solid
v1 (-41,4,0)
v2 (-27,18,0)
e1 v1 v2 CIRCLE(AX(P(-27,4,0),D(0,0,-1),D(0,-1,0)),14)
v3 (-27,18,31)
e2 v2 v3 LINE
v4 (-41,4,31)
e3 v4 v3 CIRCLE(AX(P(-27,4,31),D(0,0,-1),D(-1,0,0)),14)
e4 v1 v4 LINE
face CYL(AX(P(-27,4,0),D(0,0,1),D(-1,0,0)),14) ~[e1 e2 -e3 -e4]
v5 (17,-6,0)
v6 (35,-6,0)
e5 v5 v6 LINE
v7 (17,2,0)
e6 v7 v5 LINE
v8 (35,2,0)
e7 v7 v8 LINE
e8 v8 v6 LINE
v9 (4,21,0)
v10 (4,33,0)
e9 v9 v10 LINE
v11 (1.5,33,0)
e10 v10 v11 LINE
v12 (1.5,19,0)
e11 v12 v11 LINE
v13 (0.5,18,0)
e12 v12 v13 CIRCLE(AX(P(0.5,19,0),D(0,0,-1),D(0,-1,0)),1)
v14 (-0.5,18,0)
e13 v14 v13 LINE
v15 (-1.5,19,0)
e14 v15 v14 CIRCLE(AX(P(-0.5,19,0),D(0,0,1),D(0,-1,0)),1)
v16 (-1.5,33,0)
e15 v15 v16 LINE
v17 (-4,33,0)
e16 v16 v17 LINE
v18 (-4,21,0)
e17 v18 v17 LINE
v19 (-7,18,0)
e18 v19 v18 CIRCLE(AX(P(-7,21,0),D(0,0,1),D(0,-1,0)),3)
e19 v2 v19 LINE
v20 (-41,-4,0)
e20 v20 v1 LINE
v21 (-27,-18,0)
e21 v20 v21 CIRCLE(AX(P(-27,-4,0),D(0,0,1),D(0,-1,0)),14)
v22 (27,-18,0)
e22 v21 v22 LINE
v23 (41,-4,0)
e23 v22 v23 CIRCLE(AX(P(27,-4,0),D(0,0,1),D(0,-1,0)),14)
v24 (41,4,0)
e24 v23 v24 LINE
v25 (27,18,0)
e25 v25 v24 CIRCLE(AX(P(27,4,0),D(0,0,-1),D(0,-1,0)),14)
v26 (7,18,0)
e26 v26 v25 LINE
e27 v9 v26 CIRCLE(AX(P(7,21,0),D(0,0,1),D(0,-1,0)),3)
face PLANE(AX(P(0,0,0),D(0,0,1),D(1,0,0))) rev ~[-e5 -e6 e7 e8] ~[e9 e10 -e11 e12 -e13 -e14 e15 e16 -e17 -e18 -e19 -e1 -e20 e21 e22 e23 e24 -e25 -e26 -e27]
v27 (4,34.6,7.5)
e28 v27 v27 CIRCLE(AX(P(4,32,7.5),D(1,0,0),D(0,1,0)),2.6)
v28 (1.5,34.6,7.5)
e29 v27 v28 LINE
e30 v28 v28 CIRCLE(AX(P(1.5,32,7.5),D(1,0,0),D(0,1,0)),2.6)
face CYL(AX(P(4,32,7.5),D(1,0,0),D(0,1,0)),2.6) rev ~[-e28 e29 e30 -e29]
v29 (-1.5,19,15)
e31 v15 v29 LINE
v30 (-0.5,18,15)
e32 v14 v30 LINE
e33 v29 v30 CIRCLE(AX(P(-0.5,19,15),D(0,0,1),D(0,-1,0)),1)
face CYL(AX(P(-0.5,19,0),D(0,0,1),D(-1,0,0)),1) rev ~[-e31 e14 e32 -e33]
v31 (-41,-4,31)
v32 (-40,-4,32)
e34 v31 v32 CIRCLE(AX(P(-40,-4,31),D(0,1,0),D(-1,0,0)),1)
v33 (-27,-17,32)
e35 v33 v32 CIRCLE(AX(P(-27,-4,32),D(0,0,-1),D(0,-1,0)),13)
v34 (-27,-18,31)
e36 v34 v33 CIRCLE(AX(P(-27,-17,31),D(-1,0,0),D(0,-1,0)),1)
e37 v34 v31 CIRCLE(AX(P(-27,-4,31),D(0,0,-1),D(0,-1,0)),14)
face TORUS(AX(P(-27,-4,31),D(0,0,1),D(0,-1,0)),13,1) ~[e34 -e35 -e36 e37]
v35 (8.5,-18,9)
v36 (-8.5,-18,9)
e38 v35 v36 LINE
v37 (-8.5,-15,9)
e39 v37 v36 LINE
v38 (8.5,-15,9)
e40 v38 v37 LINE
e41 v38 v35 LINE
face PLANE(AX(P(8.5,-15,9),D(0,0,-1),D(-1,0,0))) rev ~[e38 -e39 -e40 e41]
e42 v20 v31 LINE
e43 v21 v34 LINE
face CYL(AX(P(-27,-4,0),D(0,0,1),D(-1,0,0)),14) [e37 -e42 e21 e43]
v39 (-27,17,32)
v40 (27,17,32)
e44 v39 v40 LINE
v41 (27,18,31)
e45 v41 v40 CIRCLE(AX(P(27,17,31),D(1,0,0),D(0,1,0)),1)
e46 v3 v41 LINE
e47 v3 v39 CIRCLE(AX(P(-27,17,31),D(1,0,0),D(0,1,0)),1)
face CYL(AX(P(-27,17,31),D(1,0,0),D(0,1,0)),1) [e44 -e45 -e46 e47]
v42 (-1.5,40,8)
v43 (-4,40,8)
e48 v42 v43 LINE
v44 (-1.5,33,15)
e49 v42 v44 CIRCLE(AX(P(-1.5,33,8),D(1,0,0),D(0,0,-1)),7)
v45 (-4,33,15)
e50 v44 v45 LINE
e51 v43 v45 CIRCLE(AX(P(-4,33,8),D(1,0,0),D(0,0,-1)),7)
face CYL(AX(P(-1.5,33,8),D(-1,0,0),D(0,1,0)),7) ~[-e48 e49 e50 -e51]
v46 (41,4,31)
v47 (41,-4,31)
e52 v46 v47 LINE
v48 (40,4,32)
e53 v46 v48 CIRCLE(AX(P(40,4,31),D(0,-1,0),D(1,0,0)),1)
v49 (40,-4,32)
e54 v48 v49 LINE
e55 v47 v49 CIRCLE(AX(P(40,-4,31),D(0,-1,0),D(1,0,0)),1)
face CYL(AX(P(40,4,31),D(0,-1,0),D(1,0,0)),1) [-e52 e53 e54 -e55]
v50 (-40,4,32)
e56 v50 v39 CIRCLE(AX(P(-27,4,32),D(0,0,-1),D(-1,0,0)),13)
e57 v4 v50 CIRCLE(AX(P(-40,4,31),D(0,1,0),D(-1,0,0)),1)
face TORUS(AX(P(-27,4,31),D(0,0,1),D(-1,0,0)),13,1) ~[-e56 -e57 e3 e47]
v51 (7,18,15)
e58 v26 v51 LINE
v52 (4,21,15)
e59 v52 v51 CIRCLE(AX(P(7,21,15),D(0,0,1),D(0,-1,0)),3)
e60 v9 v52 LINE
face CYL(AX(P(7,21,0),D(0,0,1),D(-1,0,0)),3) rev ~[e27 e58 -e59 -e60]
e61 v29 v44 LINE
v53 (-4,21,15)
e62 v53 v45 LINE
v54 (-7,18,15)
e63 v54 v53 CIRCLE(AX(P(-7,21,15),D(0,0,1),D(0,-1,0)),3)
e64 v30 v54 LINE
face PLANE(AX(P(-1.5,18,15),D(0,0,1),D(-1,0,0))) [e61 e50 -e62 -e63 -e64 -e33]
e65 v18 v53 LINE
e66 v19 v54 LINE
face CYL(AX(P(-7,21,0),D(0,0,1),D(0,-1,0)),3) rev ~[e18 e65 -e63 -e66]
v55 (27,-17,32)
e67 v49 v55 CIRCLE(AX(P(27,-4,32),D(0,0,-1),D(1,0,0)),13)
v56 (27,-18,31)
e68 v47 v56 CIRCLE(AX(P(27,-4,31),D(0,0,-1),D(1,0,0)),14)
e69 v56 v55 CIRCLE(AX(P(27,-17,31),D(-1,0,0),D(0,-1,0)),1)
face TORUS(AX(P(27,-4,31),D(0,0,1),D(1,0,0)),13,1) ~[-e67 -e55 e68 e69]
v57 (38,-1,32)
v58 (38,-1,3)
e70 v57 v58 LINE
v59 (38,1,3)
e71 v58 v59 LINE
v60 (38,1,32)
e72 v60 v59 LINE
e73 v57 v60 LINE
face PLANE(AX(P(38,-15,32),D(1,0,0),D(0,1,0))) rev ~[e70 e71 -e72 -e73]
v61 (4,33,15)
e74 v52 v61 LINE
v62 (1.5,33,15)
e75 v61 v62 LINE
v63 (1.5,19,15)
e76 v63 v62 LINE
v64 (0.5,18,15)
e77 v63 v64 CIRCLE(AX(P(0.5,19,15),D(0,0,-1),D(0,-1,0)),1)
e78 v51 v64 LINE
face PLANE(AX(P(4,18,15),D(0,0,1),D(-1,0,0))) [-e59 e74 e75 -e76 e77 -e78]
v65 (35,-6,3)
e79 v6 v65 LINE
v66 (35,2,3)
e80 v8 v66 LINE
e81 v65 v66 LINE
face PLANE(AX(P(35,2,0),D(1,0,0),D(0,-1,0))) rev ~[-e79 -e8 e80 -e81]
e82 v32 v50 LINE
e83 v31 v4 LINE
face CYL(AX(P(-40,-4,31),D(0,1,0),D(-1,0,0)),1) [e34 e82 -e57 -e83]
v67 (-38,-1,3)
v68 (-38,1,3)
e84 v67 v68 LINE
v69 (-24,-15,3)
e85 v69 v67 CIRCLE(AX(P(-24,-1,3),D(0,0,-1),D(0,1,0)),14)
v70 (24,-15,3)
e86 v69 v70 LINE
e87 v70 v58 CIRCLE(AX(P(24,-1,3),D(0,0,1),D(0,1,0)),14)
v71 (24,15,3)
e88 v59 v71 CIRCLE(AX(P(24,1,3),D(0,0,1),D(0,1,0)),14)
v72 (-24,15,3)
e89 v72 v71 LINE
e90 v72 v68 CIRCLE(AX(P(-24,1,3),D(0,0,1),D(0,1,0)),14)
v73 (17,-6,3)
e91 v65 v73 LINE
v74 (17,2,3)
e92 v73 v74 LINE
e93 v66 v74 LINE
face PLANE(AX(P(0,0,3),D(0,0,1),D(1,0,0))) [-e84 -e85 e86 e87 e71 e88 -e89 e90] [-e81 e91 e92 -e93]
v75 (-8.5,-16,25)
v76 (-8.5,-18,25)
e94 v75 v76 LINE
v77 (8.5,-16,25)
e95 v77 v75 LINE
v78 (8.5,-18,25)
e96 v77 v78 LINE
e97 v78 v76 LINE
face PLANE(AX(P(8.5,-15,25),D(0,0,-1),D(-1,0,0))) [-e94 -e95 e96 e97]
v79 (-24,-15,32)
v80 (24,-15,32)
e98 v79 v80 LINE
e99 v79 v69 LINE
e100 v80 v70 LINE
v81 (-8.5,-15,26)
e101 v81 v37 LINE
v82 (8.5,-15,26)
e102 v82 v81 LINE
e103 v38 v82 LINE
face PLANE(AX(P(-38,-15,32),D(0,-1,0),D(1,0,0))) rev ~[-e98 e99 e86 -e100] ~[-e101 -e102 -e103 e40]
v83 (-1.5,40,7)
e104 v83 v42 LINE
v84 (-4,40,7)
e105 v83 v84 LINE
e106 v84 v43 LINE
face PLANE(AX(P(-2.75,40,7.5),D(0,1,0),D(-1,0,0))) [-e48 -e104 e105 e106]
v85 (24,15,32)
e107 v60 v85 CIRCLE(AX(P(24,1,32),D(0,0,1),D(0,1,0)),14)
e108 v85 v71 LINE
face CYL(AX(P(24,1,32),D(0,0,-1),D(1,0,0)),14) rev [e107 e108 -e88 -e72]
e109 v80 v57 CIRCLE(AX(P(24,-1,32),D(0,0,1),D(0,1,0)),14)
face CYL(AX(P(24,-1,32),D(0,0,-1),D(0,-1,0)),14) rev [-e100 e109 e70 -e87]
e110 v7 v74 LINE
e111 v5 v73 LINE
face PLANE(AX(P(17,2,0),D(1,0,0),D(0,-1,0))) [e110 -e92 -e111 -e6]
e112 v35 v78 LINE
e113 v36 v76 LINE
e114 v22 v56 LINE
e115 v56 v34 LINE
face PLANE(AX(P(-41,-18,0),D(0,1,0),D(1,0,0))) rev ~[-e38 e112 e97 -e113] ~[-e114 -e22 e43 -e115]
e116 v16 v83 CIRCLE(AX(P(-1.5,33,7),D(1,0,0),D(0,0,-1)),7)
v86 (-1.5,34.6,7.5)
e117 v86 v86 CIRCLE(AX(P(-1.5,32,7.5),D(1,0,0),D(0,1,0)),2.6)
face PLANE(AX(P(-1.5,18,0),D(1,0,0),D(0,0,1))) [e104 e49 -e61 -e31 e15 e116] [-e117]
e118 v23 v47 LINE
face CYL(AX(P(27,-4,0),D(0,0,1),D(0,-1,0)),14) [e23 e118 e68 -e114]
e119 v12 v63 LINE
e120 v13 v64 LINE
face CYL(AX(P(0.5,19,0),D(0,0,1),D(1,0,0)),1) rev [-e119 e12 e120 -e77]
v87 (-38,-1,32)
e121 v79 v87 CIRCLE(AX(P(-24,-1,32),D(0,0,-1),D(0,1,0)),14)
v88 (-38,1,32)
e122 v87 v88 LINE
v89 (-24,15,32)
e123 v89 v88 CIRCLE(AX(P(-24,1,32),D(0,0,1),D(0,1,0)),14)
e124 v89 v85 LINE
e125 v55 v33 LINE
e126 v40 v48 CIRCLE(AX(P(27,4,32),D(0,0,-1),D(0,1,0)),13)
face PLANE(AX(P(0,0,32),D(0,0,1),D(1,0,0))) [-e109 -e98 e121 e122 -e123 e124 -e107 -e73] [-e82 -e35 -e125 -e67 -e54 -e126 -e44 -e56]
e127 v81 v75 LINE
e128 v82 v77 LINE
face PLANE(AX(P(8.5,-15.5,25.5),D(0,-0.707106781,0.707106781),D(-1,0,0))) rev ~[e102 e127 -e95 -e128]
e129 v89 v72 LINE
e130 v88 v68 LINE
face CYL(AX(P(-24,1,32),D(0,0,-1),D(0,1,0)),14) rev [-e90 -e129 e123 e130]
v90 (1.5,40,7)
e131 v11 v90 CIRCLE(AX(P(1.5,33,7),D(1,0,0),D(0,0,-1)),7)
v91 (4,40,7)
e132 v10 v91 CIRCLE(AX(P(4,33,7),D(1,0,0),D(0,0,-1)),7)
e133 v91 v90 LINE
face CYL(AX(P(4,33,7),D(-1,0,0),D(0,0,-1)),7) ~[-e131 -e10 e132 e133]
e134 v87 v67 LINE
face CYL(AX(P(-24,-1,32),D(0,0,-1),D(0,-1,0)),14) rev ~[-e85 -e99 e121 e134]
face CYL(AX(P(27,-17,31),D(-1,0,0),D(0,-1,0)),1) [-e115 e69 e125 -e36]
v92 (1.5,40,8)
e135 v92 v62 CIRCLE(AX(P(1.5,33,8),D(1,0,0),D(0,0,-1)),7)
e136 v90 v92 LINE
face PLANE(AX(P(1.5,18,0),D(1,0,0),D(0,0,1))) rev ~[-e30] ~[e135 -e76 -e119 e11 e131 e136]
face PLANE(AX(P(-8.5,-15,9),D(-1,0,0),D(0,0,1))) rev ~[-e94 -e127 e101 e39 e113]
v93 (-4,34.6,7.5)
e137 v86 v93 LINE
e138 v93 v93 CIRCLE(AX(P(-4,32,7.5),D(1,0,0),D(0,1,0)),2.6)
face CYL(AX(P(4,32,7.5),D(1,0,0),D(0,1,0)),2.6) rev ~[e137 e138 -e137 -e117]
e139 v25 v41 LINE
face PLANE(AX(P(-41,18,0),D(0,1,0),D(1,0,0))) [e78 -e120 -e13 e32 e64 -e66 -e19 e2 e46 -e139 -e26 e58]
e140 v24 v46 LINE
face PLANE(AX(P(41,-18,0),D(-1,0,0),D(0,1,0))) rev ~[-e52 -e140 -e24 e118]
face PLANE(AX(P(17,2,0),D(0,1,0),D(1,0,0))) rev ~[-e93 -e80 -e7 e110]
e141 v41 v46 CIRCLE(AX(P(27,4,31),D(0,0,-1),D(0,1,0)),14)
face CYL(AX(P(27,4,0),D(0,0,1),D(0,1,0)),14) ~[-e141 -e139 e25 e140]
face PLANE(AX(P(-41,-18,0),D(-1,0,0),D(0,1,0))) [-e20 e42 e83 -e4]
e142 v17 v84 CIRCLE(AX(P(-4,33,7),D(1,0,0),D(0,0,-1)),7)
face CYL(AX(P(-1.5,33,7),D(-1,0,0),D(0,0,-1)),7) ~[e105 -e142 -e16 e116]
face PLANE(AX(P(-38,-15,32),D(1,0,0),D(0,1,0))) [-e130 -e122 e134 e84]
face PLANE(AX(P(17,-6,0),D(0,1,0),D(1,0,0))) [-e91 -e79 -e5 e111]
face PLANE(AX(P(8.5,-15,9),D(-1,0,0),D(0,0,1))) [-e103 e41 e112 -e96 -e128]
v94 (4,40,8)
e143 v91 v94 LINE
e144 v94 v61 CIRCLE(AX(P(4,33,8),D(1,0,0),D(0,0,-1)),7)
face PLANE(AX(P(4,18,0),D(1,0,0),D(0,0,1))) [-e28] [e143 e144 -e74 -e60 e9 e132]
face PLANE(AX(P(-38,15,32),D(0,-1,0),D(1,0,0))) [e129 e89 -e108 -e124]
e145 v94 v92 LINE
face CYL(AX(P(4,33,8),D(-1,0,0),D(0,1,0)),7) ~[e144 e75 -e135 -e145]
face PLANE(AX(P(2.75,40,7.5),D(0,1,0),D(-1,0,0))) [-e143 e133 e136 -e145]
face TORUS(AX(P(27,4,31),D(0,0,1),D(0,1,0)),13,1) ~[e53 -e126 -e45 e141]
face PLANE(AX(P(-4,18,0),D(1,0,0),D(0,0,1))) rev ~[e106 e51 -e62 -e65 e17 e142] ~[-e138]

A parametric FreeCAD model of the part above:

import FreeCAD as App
import Part
import Sketcher

V = App.Vector
Q = App.Units.Quantity


def edges_at(feature, points):
    """Names of the edges that pass closest to the given points."""
    edges = feature.Shape.Edges
    near = lambda p: min(range(len(edges)), key=lambda i: edges[i].distToShape(Part.Vertex(*p))[0])
    return sorted({f"Edge{near(p) + 1}" for p in points})


def add_polygon(sketch, points):
    """Adds a closed chain of lines whose ends are joined by coincident constraints."""
    first, n = sketch.GeometryCount, len(points)
    for a, b in zip(points, points[1:] + points[:1]):
        sketch.addGeometry(Part.LineSegment(App.Vector(*a, 0), App.Vector(*b, 0)), False)
    for i in range(n):
        sketch.addConstraint(Sketcher.Constraint("Coincident", first + i, 2, first + (i + 1) % n, 1))

doc = App.newDocument("Part")
body = doc.addObject("PartDesign::Body", "Body")

# Sketch on XY plane
sketch1 = body.newObject("Sketcher::SketchObject", "Sketch")
sketch1.AttachmentSupport = (doc.getObject("XY_Plane"), [""])
sketch1.MapMode = "FlatFace"
add_polygon(sketch1, [(-41, 18), (-41, -18), (41, -18), (41, 18)])  # lines 0-3
sketch1.addConstraint(Sketcher.Constraint("Vertical", 0))
sketch1.addConstraint(Sketcher.Constraint("Horizontal", 1))
sketch1.addConstraint(Sketcher.Constraint("Vertical", 2))
sketch1.addConstraint(Sketcher.Constraint("Horizontal", 3))
sketch1.addConstraint(Sketcher.Constraint("Symmetric", 0, 2, 2, 2, -1, 1))
sketch1.addConstraint(Sketcher.Constraint("DistanceX", 1, 1, 1, 2, Q("82 mm")))
sketch1.addConstraint(Sketcher.Constraint("DistanceY", 0, 2, 0, 1, Q("36 mm")))
pad1 = body.newObject("PartDesign::Pad", "Pad")
pad1.Profile = sketch1
pad1.Length = 32

# Sketch on XY plane
sketch2 = body.newObject("Sketcher::SketchObject", "Sketch001")
sketch2.AttachmentSupport = (doc.getObject("XY_Plane"), [""])
sketch2.MapMode = "FlatFace"
sketch2.AttachmentOffset = App.Placement(V(0, 0, 32), App.Rotation())
add_polygon(sketch2, [(-38, 15), (-38, -15), (38, -15), (38, 15)])  # lines 0-3
sketch2.addConstraint(Sketcher.Constraint("Vertical", 0))
sketch2.addConstraint(Sketcher.Constraint("Horizontal", 1))
sketch2.addConstraint(Sketcher.Constraint("Vertical", 2))
sketch2.addConstraint(Sketcher.Constraint("Horizontal", 3))
sketch2.addConstraint(Sketcher.Constraint("Symmetric", 0, 2, 2, 2, -1, 1))
sketch2.addConstraint(Sketcher.Constraint("DistanceX", 1, 1, 1, 2, Q("76 mm")))
sketch2.addConstraint(Sketcher.Constraint("DistanceY", 0, 2, 0, 1, Q("30 mm")))
pocket1 = body.newObject("PartDesign::Pocket", "Pocket")
pocket1.Profile = sketch2
pocket1.Length = 29
doc.recompute()

fillet = body.newObject("PartDesign::Fillet", "Fillet")
fillet.Base = (pocket1, edges_at(pocket1, [
    (-41, 18, 16),
    (-38, 15, 17.5),
    (-41, -18, 16),
    (-38, -15, 17.5),
    (41, 18, 16),
    (38, 15, 17.5),
    (41, -18, 16),
    (38, -15, 17.5),
]))
fillet.Radius = 14

# Sketch on XZ plane
sketch3 = body.newObject("Sketcher::SketchObject", "Sketch002")
sketch3.AttachmentSupport = (doc.getObject("XZ_Plane"), [""])
sketch3.MapMode = "FlatFace"
sketch3.AttachmentOffset = App.Placement(V(0, 0, 15), App.Rotation())
add_polygon(sketch3, [(8, 25), (8, 9), (-8, 9), (-8, 25)])  # lines 0-3
sketch3.addConstraint(Sketcher.Constraint("Vertical", 0))
sketch3.addConstraint(Sketcher.Constraint("Horizontal", 1))
sketch3.addConstraint(Sketcher.Constraint("Vertical", 2))
sketch3.addConstraint(Sketcher.Constraint("Horizontal", 3))
sketch3.addConstraint(Sketcher.Constraint("DistanceX", 1, 2, 1, 1, Q("17 mm")))
sketch3.addConstraint(Sketcher.Constraint("DistanceY", 0, 2, 0, 1, Q("16 mm")))
sketch3.addConstraint(Sketcher.Constraint("DistanceY", -1, 1, 0, 2, Q("9 mm")))
sketch3.addConstraint(Sketcher.Constraint("DistanceX", -1, 1, 0, 2, Q("8.5 mm")))
pocket2 = body.newObject("PartDesign::Pocket", "Pocket001")
pocket2.Profile = sketch3
pocket2.Length = 8
pocket2.Reversed = True

# Sketch on XY plane
sketch4 = body.newObject("Sketcher::SketchObject", "Sketch003")
sketch4.AttachmentSupport = (doc.getObject("XY_Plane"), [""])
sketch4.MapMode = "FlatFace"
add_polygon(sketch4, [(17, -6), (17, 2), (35, 2), (35, -6)])  # lines 0-3
sketch4.addConstraint(Sketcher.Constraint("Vertical", 0))
sketch4.addConstraint(Sketcher.Constraint("Horizontal", 1))
sketch4.addConstraint(Sketcher.Constraint("Vertical", 2))
sketch4.addConstraint(Sketcher.Constraint("Horizontal", 3))
sketch4.addConstraint(Sketcher.Constraint("DistanceX", 1, 1, 1, 2, Q("18 mm")))
sketch4.addConstraint(Sketcher.Constraint("DistanceY", 0, 1, 0, 2, Q("8 mm")))
sketch4.addConstraint(Sketcher.Constraint("DistanceX", -1, 1, 0, 2, Q("17 mm")))
sketch4.addConstraint(Sketcher.Constraint("DistanceY", -1, 1, 0, 2, Q("2 mm")))
pocket3 = body.newObject("PartDesign::Pocket", "Pocket002")
pocket3.Profile = sketch4
pocket3.Length = 5
pocket3.Reversed = True

# Sketch on XZ plane
sketch5 = body.newObject("Sketcher::SketchObject", "Sketch004")
sketch5.AttachmentSupport = (doc.getObject("XZ_Plane"), [""])
sketch5.MapMode = "FlatFace"
sketch5.AttachmentOffset = App.Placement(V(0, 0, -18), App.Rotation())
add_polygon(sketch5, [(-1.5, 15), (-1.5, 0), (-4, 0), (-4, 15)])  # lines 0-3
add_polygon(sketch5, [(4, 15), (4, 0), (1.5, 0), (1.5, 15)])  # lines 4-7
sketch5.addConstraint(Sketcher.Constraint("Vertical", 0))
sketch5.addConstraint(Sketcher.Constraint("Horizontal", 1))
sketch5.addConstraint(Sketcher.Constraint("Vertical", 2))
sketch5.addConstraint(Sketcher.Constraint("Horizontal", 3))
sketch5.addConstraint(Sketcher.Constraint("Vertical", 4))
sketch5.addConstraint(Sketcher.Constraint("Horizontal", 5))
sketch5.addConstraint(Sketcher.Constraint("Vertical", 6))
sketch5.addConstraint(Sketcher.Constraint("Horizontal", 7))
sketch5.addConstraint(Sketcher.Constraint("Symmetric", 1, 2, 4, 2, -1, 1))
sketch5.addConstraint(Sketcher.Constraint("Symmetric", 0, 2, 5, 2, -2))
sketch5.addConstraint(Sketcher.Constraint("Horizontal", 3, 2, 6, 2))
sketch5.addConstraint(Sketcher.Constraint("DistanceY", 0, 2, 0, 1, Q("15 mm")))
sketch5.addConstraint(Sketcher.Constraint("DistanceX", 1, 2, 1, 1, Q("2.5 mm")))
sketch5.addConstraint(Sketcher.Constraint("DistanceX", 1, 2, -1, 1, Q("4 mm")))
pad2 = body.newObject("PartDesign::Pad", "Pad001")
pad2.Profile = sketch5
pad2.Length = 22
pad2.Reversed = True

# Sketch on YZ plane
sketch6 = body.newObject("Sketcher::SketchObject", "Sketch005")
sketch6.AttachmentSupport = (doc.getObject("YZ_Plane"), [""])
sketch6.MapMode = "FlatFace"
sketch6.AttachmentOffset = App.Placement(V(0, 0, 4), App.Rotation())
sketch6.addGeometry(Part.Circle(V(32, 7.5, 0), V(0, 0, 1), 2.6), False)
sketch6.addConstraint(Sketcher.Constraint("Diameter", 0, Q("5.2 mm")))
sketch6.addConstraint(Sketcher.Constraint("DistanceX", -1, 1, 0, 3, Q("32 mm")))
sketch6.addConstraint(Sketcher.Constraint("DistanceY", -1, 1, 0, 3, Q("7.5 mm")))
pocket4 = body.newObject("PartDesign::Pocket", "Pocket003")
pocket4.Profile = sketch6
pocket4.Length = 12
doc.recompute()

fillet2 = body.newObject("PartDesign::Fillet", "Fillet001")
fillet2.Base = (pocket4, edges_at(pocket4, [
    (-36.899, 13.899, 32),
    (-41, 0, 32),
    (-36.899, -13.899, 32),
    (0, -18, 32),
    (36.899, -13.899, 32),
    (41, 0, 32),
    (36.899, 13.899, 32),
    (0, 18, 32),
]))
fillet2.Radius = 1
doc.recompute()

fillet3 = body.newObject("PartDesign::Fillet", "Fillet002")
fillet3.Base = (fillet2, edges_at(fillet2, [
    (-2.75, 40, 15),
    (2.75, 40, 15),
    (-2.75, 40, 0),
    (2.75, 40, 0),
]))
fillet3.Radius = 7
doc.recompute()

fillet4 = body.newObject("PartDesign::Fillet", "Fillet003")
fillet4.Base = (fillet3, edges_at(fillet3, [(4, 18, 7.5), (-4, 18, 7.5)]))
fillet4.Radius = 3
doc.recompute()

fillet5 = body.newObject("PartDesign::Fillet", "Fillet004")
fillet5.Base = (fillet4, edges_at(fillet4, [(-1.5, 18, 7.5), (1.5, 18, 7.5)]))
fillet5.Radius = 1
doc.recompute()

chamfer = body.newObject("PartDesign::Chamfer", "Chamfer")
chamfer.Base = (fillet5, edges_at(fillet5, [(0, -15, 25)]))
chamfer.Size = 1

doc.recompute()
